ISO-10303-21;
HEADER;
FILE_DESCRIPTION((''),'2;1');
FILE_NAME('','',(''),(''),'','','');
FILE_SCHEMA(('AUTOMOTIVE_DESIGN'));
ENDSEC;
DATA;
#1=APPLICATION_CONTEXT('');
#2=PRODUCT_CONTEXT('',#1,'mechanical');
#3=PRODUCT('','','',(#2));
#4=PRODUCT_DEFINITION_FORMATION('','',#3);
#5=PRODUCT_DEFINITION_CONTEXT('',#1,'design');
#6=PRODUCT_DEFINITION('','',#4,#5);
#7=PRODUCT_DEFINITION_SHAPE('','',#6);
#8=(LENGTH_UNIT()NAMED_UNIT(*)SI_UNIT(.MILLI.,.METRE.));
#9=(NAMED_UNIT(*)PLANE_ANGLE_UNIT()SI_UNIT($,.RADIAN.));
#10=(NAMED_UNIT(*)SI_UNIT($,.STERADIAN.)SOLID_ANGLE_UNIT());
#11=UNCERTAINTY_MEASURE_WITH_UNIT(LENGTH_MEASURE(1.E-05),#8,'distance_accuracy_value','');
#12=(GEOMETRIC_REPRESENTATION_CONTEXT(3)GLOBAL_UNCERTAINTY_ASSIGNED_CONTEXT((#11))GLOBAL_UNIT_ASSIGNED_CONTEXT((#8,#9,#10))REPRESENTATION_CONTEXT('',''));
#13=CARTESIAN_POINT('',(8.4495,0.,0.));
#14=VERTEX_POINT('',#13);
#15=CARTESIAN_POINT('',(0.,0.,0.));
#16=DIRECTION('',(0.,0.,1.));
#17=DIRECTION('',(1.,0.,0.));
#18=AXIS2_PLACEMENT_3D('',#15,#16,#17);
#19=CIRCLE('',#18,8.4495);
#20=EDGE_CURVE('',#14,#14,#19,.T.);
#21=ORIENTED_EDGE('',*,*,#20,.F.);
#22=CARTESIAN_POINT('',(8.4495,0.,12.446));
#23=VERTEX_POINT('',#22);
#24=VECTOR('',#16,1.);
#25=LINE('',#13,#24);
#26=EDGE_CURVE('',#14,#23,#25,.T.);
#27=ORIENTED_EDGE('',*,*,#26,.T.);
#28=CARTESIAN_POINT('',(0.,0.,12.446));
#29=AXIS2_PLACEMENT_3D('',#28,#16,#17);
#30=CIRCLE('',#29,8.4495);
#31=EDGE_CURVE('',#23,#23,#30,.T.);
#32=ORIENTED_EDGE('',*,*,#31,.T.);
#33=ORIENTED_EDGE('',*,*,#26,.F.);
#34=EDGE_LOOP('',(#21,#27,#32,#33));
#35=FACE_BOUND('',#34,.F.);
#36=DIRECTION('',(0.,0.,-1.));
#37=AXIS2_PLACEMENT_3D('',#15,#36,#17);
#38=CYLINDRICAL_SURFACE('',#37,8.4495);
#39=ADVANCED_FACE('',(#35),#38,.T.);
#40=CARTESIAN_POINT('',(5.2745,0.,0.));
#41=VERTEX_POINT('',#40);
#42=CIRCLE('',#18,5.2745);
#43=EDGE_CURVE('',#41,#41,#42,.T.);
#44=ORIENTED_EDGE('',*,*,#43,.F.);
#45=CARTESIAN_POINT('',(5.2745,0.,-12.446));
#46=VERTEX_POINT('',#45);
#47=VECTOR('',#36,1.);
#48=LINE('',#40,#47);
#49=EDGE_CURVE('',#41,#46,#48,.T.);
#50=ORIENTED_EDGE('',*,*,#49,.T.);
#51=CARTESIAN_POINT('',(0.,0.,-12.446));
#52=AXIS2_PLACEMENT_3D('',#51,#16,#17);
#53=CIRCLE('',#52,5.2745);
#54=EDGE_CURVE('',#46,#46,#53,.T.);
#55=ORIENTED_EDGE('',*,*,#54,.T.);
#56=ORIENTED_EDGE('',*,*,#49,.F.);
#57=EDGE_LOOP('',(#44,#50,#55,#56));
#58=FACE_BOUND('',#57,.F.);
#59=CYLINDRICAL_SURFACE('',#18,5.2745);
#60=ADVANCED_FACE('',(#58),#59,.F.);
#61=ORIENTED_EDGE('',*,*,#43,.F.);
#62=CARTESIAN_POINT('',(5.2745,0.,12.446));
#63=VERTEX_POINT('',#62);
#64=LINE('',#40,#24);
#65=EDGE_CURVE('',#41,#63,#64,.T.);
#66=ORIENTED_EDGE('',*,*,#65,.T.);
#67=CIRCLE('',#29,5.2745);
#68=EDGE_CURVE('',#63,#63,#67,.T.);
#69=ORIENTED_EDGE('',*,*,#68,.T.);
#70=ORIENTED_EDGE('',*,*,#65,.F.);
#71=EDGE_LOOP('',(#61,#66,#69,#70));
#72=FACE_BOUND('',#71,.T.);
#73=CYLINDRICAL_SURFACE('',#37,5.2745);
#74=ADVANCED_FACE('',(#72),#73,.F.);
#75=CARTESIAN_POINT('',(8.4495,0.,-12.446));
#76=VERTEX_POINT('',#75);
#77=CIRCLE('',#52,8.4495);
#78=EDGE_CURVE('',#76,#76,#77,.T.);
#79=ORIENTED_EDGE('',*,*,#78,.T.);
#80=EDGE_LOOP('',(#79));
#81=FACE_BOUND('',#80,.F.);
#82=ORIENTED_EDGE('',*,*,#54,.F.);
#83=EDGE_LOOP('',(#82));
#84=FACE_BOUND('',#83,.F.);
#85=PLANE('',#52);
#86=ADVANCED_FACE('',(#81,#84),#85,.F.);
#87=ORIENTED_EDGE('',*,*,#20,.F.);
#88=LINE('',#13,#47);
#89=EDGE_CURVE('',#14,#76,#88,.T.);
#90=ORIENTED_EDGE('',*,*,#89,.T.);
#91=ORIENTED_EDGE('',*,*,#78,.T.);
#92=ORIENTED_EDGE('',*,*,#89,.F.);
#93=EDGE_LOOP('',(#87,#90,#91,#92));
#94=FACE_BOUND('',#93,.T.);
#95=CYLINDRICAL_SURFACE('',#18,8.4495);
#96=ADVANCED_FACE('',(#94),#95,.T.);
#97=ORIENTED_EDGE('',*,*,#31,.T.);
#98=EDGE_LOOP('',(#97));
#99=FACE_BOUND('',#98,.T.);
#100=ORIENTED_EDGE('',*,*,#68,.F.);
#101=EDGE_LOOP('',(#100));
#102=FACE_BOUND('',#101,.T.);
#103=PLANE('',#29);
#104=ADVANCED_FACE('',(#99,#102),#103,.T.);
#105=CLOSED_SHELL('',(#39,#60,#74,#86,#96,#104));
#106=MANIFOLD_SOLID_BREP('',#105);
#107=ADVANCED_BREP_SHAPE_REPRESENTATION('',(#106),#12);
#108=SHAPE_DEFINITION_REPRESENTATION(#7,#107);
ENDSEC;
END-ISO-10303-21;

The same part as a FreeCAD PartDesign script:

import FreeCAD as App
import Part
import Sketcher

V = App.Vector
Q = App.Units.Quantity

doc = App.newDocument("Part")
body = doc.addObject("PartDesign::Body", "Body")

sketch1 = body.newObject("Sketcher::SketchObject", "Sketch")
sketch1.AttachmentSupport = (doc.getObject("XY_Plane"), [""])
sketch1.MapMode = "FlatFace"
sketch1.addGeometry([
    Part.Circle(V(0, 0, 0), V(0, 0, 1), 8.4495),
    Part.Circle(V(0, 0, 0), V(0, 0, 1), 5.2745),
], False)
sketch1.addConstraint([
    Sketcher.Constraint("Coincident", 0, 3, -1, 1),
    Sketcher.Constraint("Coincident", 1, 3, -1, 1),
    Sketcher.Constraint("Diameter", 1, Q("10.549 mm")),
    Sketcher.Constraint("Diameter", 0, Q("16.899 mm")),
])
pad1 = body.newObject("PartDesign::Pad", "Pad")
pad1.Profile = sketch1
pad1.Length = Q("0.98 in")
pad1.Midplane = True

doc.recompute()
